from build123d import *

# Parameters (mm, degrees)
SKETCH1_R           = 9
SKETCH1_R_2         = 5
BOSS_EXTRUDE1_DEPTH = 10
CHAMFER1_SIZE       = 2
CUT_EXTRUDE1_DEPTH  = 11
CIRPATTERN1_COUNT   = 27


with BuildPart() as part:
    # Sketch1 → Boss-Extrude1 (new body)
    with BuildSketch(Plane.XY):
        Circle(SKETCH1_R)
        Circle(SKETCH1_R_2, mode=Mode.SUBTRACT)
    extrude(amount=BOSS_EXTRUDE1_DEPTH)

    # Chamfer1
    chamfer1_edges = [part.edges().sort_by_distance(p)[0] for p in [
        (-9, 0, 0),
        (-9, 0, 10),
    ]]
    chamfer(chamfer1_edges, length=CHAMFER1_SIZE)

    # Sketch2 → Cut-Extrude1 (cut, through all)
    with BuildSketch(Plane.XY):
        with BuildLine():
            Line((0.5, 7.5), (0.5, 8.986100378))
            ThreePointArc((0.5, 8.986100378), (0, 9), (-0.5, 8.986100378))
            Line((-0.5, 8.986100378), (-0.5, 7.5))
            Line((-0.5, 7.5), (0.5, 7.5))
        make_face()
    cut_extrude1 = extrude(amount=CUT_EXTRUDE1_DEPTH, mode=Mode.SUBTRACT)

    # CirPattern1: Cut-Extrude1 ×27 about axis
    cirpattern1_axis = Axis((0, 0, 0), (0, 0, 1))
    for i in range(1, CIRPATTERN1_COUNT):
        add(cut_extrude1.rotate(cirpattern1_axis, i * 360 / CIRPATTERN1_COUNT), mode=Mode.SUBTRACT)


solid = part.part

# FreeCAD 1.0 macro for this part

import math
import FreeCAD as App
import Part
import Sketcher
from FreeCAD import Vector


def edges_at(feature, points):
    """Names of the edges that pass closest to the given points."""
    edges = feature.Shape.Edges
    near = lambda p: min(range(len(edges)), key=lambda i: edges[i].distToShape(Part.Vertex(*p))[0])
    return sorted({f"Edge{near(p) + 1}" for p in points})

doc = App.newDocument("Part")
body = doc.addObject("PartDesign::Body", "Body")

sketch1 = body.newObject("Sketcher::SketchObject", "Sketch")
sketch1.AttachmentSupport = (doc.getObject("XY_Plane"), [""])
sketch1.MapMode = "FlatFace"
sketch1.addGeometry([
    Part.Circle(Vector(0, 0, 0), Vector(0, 0, 1), 9),
    Part.Circle(Vector(0, 0, 0), Vector(0, 0, 1), 5),
], False)
sketch1.addConstraint([
    Sketcher.Constraint("Coincident", 0, 3, -1, 1),
    Sketcher.Constraint("Coincident", 1, 3, -1, 1),
    Sketcher.Constraint("Diameter", 0, 18.0),
    Sketcher.Constraint("Diameter", 1, 10.0),
])
pad1 = body.newObject("PartDesign::Pad", "Pad")
pad1.Profile = sketch1
pad1.Length = 10
doc.recompute()

chamfer = body.newObject("PartDesign::Chamfer", "Chamfer")
chamfer.Base = (pad1, edges_at(pad1, [(-9, 0, 0), (-9, 0, 10)]))
chamfer.Size = 2

sketch2 = body.newObject("Sketcher::SketchObject", "Sketch001")
sketch2.AttachmentSupport = (doc.getObject("XY_Plane"), [""])
sketch2.MapMode = "FlatFace"
sketch2.addGeometry([
    Part.LineSegment(Vector(0.5, 7.5, 0), Vector(0.5, 8.9861, 0)),
    Part.ArcOfCircle(Part.Circle(Vector(0, 0, 0), Vector(0, 0, 1), 9), math.radians(86.815262), math.radians(93.184738)),
    Part.LineSegment(Vector(-0.5, 8.9861, 0), Vector(-0.5, 7.5, 0)),
    Part.LineSegment(Vector(-0.5, 7.5, 0), Vector(0.5, 7.5, 0)),
], False)
sketch2.addConstraint([
    Sketcher.Constraint("Coincident", 0, 2, 1, 1),
    Sketcher.Constraint("Coincident", 1, 2, 2, 1),
    Sketcher.Constraint("Coincident", 2, 2, 3, 1),
    Sketcher.Constraint("Coincident", 3, 2, 0, 1),
    Sketcher.Constraint("Vertical", 0),
    Sketcher.Constraint("Vertical", 2),
    Sketcher.Constraint("Horizontal", 3),
    Sketcher.Constraint("Coincident", 1, 3, -1, 1),
    Sketcher.Constraint("Horizontal", 0, 2, 1, 2),
    Sketcher.Constraint("Radius", 1, 9.0),
    Sketcher.Constraint("DistanceX", 3, 1, 3, 2, 1.0),
    Sketcher.Constraint("DistanceY", -1, 1, 2, 2, 7.5),
])
pocket1 = body.newObject("PartDesign::Pocket", "Pocket")
pocket1.Profile = sketch2
pocket1.Type = "ThroughAll"
pocket1.Reversed = True
doc.recompute()

polarpattern = body.newObject("PartDesign::PolarPattern", "PolarPattern")
polarpattern.Originals = [pocket1]
polarpattern.Axis = (doc.getObject("Z_Axis"), [""])
polarpattern.Angle = 360
polarpattern.Occurrences = 27
body.Tip = polarpattern

doc.recompute()
